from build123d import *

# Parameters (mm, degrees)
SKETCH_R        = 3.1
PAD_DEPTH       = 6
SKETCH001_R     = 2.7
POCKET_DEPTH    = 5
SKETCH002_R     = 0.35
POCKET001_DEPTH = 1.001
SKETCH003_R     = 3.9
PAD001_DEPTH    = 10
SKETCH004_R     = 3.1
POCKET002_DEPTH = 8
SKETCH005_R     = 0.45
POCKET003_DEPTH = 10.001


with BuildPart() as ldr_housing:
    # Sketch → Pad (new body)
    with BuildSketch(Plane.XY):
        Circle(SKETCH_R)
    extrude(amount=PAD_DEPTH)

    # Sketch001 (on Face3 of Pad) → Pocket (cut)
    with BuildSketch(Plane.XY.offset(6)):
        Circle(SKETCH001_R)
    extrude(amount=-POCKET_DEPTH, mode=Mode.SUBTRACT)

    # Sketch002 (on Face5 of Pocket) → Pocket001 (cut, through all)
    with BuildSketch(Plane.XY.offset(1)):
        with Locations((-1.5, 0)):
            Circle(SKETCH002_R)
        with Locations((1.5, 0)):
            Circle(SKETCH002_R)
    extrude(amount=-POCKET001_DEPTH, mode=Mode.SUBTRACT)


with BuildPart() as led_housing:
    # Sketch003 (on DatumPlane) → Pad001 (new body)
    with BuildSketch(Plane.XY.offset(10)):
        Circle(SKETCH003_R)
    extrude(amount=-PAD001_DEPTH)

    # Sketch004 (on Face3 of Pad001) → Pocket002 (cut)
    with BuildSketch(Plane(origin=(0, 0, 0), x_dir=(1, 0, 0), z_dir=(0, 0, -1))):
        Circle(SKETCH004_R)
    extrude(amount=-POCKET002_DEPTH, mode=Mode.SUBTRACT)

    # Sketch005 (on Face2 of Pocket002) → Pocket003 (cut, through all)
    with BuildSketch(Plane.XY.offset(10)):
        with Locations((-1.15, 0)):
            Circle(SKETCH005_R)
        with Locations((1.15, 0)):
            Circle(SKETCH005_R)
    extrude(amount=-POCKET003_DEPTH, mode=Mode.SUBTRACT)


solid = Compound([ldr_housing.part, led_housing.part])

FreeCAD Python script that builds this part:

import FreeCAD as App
import Part
import Sketcher
from FreeCAD import Vector
Q = App.Units.Quantity

doc = App.newDocument("Part")
body = doc.addObject("PartDesign::Body", "Body")

# Sketch on XY plane
sketch1 = body.newObject("Sketcher::SketchObject", "Sketch")
sketch1.AttachmentSupport = (doc.getObject("XY_Plane"), [""])
sketch1.MapMode = "FlatFace"
sketch1.addGeometry(Part.Circle(Vector(0, 0, 0), Vector(0, 0, 1), 3.1), False)
sketch1.addConstraint([
    Sketcher.Constraint("Coincident", 0, 3, -1, 1),
    Sketcher.Constraint("Diameter", 0, Q("6.2 mm")),
])
pad1 = body.newObject("PartDesign::Pad", "Pad")
pad1.Profile = sketch1
pad1.Length = 6

# Sketch on XY plane
sketch2 = body.newObject("Sketcher::SketchObject", "Sketch001")
sketch2.AttachmentSupport = (doc.getObject("XY_Plane"), [""])
sketch2.MapMode = "FlatFace"
sketch2.AttachmentOffset = App.Placement(Vector(0, 0, 6), App.Rotation())
sketch2.addGeometry(Part.Circle(Vector(0, 0, 0), Vector(0, 0, 1), 2.7), False)
sketch2.addConstraint([
    Sketcher.Constraint("Coincident", 0, 3, -1, 1),
    Sketcher.Constraint("Diameter", 0, Q("5.4 mm")),
])
pocket1 = body.newObject("PartDesign::Pocket", "Pocket")
pocket1.Profile = sketch2
pocket1.Length = 5

# Sketch on XY plane
sketch3 = body.newObject("Sketcher::SketchObject", "Sketch002")
sketch3.AttachmentSupport = (doc.getObject("XY_Plane"), [""])
sketch3.MapMode = "FlatFace"
sketch3.AttachmentOffset = App.Placement(Vector(0, 0, 1), App.Rotation())
sketch3.addGeometry([
    Part.Circle(Vector(-1.5, 0, 0), Vector(0, 0, 1), 0.35),
    Part.Circle(Vector(1.5, 0, 0), Vector(0, 0, 1), 0.35),
], False)
sketch3.addConstraint([
    Sketcher.Constraint("Equal", 0, 1),
    Sketcher.Constraint("Symmetric", 0, 3, 1, 3, -1, 1),
    Sketcher.Constraint("PointOnObject", 0, 3, -1),
    Sketcher.Constraint("Diameter", 0, Q("0.7 mm")),
    Sketcher.Constraint("DistanceX", 0, 3, 1, 3, Q("3 mm")),
])
pocket2 = body.newObject("PartDesign::Pocket", "Pocket001")
pocket2.Profile = sketch3
pocket2.Type = "ThroughAll"
body2 = doc.addObject("PartDesign::Body", "Body001")

# Sketch on XY plane
sketch4 = body2.newObject("Sketcher::SketchObject", "Sketch003")
sketch4.AttachmentSupport = (doc.getObject("XY_Plane001"), [""])
sketch4.MapMode = "FlatFace"
sketch4.AttachmentOffset = App.Placement(Vector(0, 0, 10), App.Rotation())
sketch4.addGeometry(Part.Circle(Vector(0, 0, 0), Vector(0, 0, 1), 3.9), False)
sketch4.addConstraint([
    Sketcher.Constraint("Coincident", 0, 3, -1, 1),
    Sketcher.Constraint("Diameter", 0, Q("7.8 mm")),
])
pad2 = body2.newObject("PartDesign::Pad", "Pad001")
pad2.Profile = sketch4
pad2.Length = 10
pad2.Reversed = True

# Sketch on XY plane
sketch5 = body2.newObject("Sketcher::SketchObject", "Sketch004")
sketch5.AttachmentSupport = (doc.getObject("XY_Plane001"), [""])
sketch5.MapMode = "FlatFace"
sketch5.addGeometry(Part.Circle(Vector(0, 0, 0), Vector(0, 0, 1), 3.1), False)
sketch5.addConstraint([
    Sketcher.Constraint("Coincident", 0, 3, -1, 1),
    Sketcher.Constraint("Diameter", 0, Q("6.2 mm")),
])
pocket3 = body2.newObject("PartDesign::Pocket", "Pocket002")
pocket3.Profile = sketch5
pocket3.Length = 8
pocket3.Reversed = True

# Sketch on XY plane
sketch6 = body2.newObject("Sketcher::SketchObject", "Sketch005")
sketch6.AttachmentSupport = (doc.getObject("XY_Plane001"), [""])
sketch6.MapMode = "FlatFace"
sketch6.AttachmentOffset = App.Placement(Vector(0, 0, 10), App.Rotation())
sketch6.addGeometry([
    Part.Circle(Vector(-1.15, 0, 0), Vector(0, 0, 1), 0.45),
    Part.Circle(Vector(1.15, 0, 0), Vector(0, 0, 1), 0.45),
], False)
sketch6.addConstraint([
    Sketcher.Constraint("Equal", 0, 1),
    Sketcher.Constraint("Symmetric", 0, 3, 1, 3, -1, 1),
    Sketcher.Constraint("PointOnObject", 0, 3, -1),
    Sketcher.Constraint("Diameter", 0, Q("0.9 mm")),
    Sketcher.Constraint("DistanceX", 0, 3, 1, 3, Q("2.3 mm")),
])
pocket4 = body2.newObject("PartDesign::Pocket", "Pocket003")
pocket4.Profile = sketch6
pocket4.Type = "ThroughAll"

doc.recompute()
